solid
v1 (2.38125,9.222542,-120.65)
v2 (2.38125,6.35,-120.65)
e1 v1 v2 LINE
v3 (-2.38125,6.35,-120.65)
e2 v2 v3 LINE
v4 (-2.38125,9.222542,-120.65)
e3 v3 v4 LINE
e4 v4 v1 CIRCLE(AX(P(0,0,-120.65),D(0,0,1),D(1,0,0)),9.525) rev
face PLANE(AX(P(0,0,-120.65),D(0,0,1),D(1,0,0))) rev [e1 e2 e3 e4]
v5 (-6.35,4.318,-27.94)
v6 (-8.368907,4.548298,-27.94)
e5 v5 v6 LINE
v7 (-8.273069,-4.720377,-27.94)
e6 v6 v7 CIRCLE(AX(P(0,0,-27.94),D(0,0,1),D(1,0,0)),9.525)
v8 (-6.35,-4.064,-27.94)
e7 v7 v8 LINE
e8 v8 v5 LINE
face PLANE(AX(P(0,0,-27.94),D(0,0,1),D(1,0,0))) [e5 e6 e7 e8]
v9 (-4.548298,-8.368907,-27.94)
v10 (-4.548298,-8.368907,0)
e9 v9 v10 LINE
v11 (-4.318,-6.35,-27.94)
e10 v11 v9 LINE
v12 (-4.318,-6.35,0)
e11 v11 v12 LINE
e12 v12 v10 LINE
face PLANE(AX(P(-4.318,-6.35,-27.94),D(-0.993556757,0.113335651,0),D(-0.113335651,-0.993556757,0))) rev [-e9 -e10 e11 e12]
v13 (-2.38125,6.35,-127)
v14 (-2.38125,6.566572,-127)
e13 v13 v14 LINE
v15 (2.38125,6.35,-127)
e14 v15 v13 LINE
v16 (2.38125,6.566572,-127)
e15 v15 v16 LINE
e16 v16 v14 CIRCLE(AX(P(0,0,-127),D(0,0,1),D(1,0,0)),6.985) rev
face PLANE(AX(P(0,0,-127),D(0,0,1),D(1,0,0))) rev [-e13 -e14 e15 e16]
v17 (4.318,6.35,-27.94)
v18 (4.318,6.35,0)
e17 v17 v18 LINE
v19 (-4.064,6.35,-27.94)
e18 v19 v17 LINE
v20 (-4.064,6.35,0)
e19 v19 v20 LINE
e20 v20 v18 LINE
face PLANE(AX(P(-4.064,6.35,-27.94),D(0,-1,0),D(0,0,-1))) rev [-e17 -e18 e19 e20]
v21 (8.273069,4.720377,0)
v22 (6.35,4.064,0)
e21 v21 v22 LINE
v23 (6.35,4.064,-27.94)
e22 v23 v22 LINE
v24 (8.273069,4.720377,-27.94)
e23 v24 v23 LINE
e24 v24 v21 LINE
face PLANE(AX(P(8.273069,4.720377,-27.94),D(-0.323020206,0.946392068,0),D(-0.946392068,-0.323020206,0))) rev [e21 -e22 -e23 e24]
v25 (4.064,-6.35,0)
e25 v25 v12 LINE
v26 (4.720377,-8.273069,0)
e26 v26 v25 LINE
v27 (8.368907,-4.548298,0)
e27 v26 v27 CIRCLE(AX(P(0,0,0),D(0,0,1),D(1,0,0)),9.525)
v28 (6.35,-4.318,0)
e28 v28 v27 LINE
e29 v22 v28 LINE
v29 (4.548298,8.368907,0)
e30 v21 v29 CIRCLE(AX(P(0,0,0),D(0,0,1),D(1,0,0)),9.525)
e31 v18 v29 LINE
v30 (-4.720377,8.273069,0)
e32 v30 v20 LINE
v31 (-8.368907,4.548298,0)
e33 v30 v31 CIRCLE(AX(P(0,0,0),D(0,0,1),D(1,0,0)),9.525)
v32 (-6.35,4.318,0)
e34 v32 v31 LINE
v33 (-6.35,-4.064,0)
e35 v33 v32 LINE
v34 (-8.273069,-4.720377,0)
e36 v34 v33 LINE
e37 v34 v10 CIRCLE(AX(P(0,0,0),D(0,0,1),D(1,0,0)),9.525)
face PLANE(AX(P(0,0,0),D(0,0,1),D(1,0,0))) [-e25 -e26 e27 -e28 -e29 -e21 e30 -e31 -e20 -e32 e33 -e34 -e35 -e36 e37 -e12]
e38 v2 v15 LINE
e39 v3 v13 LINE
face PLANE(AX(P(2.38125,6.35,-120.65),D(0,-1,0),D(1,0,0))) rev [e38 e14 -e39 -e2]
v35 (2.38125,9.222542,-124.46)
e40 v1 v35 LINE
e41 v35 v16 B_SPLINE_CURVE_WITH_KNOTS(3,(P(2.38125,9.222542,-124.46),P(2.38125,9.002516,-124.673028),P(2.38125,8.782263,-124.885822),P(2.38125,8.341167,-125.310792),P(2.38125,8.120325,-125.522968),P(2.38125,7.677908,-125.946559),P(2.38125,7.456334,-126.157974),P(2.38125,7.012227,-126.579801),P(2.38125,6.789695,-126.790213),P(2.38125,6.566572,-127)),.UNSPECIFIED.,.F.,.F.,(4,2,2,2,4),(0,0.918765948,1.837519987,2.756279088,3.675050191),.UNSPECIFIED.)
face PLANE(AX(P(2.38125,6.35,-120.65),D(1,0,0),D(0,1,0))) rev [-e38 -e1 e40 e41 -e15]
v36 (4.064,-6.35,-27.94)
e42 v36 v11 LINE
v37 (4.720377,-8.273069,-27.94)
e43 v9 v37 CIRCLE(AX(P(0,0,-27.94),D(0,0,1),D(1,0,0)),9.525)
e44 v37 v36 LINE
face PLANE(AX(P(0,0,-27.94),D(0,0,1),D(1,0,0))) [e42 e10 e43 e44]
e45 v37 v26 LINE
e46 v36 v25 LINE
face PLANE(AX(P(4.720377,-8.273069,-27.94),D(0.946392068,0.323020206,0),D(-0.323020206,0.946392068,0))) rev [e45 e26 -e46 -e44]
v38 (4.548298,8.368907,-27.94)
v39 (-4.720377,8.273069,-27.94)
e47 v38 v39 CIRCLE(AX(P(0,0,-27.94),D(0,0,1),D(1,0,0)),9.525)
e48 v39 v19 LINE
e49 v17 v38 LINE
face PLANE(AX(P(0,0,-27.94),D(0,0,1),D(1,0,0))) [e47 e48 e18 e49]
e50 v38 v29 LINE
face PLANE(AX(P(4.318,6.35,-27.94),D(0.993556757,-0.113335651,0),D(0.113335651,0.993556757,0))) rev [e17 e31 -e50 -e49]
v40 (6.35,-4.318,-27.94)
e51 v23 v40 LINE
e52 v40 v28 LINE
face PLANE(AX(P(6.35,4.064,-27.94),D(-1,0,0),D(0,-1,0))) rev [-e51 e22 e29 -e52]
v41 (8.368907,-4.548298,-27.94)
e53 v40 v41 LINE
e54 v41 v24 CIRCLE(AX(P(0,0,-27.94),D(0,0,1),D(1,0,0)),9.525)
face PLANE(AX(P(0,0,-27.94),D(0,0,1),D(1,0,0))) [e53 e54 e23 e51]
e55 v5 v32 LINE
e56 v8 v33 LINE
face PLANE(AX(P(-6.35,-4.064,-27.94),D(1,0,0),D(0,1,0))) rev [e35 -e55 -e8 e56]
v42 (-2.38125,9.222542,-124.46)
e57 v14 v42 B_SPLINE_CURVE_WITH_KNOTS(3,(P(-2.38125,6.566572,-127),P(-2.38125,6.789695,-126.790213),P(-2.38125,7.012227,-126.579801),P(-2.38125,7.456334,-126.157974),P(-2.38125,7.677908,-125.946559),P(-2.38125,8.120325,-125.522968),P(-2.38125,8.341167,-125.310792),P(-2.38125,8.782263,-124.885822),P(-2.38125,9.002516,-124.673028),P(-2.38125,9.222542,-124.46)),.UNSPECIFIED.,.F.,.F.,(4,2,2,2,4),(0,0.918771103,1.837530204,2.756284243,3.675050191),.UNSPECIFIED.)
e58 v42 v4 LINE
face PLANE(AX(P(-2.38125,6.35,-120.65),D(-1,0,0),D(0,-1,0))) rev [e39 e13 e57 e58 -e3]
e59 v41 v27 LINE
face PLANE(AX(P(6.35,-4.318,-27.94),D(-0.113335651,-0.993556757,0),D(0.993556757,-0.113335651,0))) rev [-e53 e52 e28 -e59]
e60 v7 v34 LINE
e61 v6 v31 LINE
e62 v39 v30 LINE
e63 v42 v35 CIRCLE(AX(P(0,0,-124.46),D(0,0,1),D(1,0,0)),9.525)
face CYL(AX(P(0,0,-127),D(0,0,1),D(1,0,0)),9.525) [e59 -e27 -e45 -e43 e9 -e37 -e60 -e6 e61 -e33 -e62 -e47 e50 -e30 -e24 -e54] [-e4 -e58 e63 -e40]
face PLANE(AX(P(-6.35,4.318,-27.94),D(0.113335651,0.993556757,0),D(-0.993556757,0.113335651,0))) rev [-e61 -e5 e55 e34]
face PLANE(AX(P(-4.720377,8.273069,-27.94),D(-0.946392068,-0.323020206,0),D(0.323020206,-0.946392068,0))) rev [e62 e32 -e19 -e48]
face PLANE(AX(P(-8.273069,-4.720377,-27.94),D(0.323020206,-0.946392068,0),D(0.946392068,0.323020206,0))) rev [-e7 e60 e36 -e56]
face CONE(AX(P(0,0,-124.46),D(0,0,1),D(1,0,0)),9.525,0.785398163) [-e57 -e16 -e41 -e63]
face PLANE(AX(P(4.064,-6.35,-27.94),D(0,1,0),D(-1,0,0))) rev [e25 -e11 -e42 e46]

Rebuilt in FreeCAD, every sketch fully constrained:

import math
import FreeCAD as App
import Part
import Sketcher
from FreeCAD import Vector
Q = App.Units.Quantity


def edges_at(feature, points):
    """Names of the edges that pass closest to the given points."""
    edges = feature.Shape.Edges
    near = lambda p: min(range(len(edges)), key=lambda i: edges[i].distToShape(Part.Vertex(*p))[0])
    return sorted({f"Edge{near(p) + 1}" for p in points})

doc = App.newDocument("Part")
params = doc.addObject("Spreadsheet::Sheet", "Params")
for row, (alias, value) in enumerate([
    ("sketch1_diameter", "0.75 in"),
    ("pad1_length", "5 in"),
    ("sketch2_width", "0.1875 in"),
    ("sketch2_height", "0.125 in"),
    ("pocket1_length", "0.25 in"),
    ("chamfer_size", "0.1 in"),
    ("sketch3_radius", "0.375 in"),
    ("sketch3_width", "0.33 in"),
    ("sketch3_length", "0.08 in"),
    ("pocket2_length", "1.1 in"),
], start=1):
    params.set(f"A{row}", alias)
    params.set(f"B{row}", "=" + value)
    params.setAlias(f"B{row}", alias)

body = doc.addObject("PartDesign::Body", "Body")

sketch1 = doc.addObject("Sketcher::SketchObject", "Sketch")
body.addObject(sketch1)
sketch1.AttachmentSupport = (doc.XY_Plane, [""])
sketch1.MapMode = "FlatFace"
sketch1.addGeometry(Part.Circle(Vector(0, 0, 0), Vector(0, 0, 1), 10), False)
sketch1.addConstraint([
    Sketcher.Constraint("Coincident", 0, 3, -1, 1),
    Sketcher.Constraint("Diameter", 0, Q("0.75 in")),
])
sketch1.setExpression("Constraints[1]", "Params.sketch1_diameter")
pad1 = doc.addObject("PartDesign::Pad", "Pad")
body.addObject(pad1)
pad1.Profile = sketch1
pad1.setExpression("Length", "Params.pad1_length")
pad1.Reversed = True

sketch2 = doc.addObject("Sketcher::SketchObject", "Sketch001")
body.addObject(sketch2)
sketch2.AttachmentSupport = (doc.XY_Plane, [""])
sketch2.MapMode = "FlatFace"
sketch2.AttachmentOffset = App.Placement(Vector(0, 0, -5 * 25.4), App.Rotation())
sketch2.addGeometry([
    Part.LineSegment(Vector(2.4, 9.5, 0), Vector(2.4, 6.3, 0)),
    Part.LineSegment(Vector(2.4, 6.3, 0), Vector(-2.4, 6.3, 0)),
    Part.LineSegment(Vector(-2.4, 6.3, 0), Vector(-2.4, 9.5, 0)),
    Part.LineSegment(Vector(-2.4, 9.5, 0), Vector(2.4, 9.5, 0)),
], False)
sketch2.addConstraint([
    Sketcher.Constraint("Coincident", 0, 2, 1, 1),
    Sketcher.Constraint("Coincident", 1, 2, 2, 1),
    Sketcher.Constraint("Coincident", 2, 2, 3, 1),
    Sketcher.Constraint("Coincident", 3, 2, 0, 1),
    Sketcher.Constraint("Vertical", 0),
    Sketcher.Constraint("Horizontal", 1),
    Sketcher.Constraint("Vertical", 2),
    Sketcher.Constraint("Horizontal", 3),
    Sketcher.Constraint("DistanceX", 1, 2, 1, 1, Q("0.1875 in")),
    Sketcher.Constraint("DistanceY", 0, 2, 0, 1, Q("0.125 in")),
    Sketcher.Constraint("DistanceY", -1, 1, 0, 2, Q("0.25 in")),
    Sketcher.Constraint("DistanceX", -1, 1, 0, 2, Q("0.09375 in")),
])
sketch2.setExpression("Constraints[8]", "Params.sketch2_width")
sketch2.setExpression("Constraints[9]", "Params.sketch2_height")
pocket1 = doc.addObject("PartDesign::Pocket", "Pocket")
body.addObject(pocket1)
pocket1.Profile = sketch2
pocket1.setExpression("Length", "Params.pocket1_length")
pocket1.Reversed = True
doc.recompute()

chamfer = doc.addObject("PartDesign::Chamfer", "Chamfer")
body.addObject(chamfer)
chamfer.Base = (pocket1, edges_at(pocket1, [(-5.833, -7.53, -127)]))
chamfer.setExpression("Size", "Params.chamfer_size")

sketch3 = doc.addObject("Sketcher::SketchObject", "Sketch002")
body.addObject(sketch3)
sketch3.AttachmentSupport = (doc.XY_Plane, [""])
sketch3.MapMode = "FlatFace"
sketch3.addGeometry([
    Part.LineSegment(Vector(-4.7, 8.3, 0), Vector(-4.1, 6.3, 0)),
    Part.LineSegment(Vector(-4.1, 6.3, 0), Vector(4.3, 6.3, 0)),
    Part.LineSegment(Vector(4.3, 6.3, 0), Vector(4.5, 8.4, 0)),
    Part.ArcOfCircle(Part.Circle(Vector(0, 0, 0), Vector(0, 0, 1), 9.5), math.radians(61), math.radians(120)),
    Part.LineSegment(Vector(8.3, 4.7, 0), Vector(6.3, 4.1, 0)),
    Part.LineSegment(Vector(6.3, 4.1, 0), Vector(6.3, -4.3, 0)),
    Part.LineSegment(Vector(6.3, -4.3, 0), Vector(8.4, -4.5, 0)),
    Part.ArcOfCircle(Part.Circle(Vector(0, 0, 0), Vector(0, 0, 1), 9.5), math.radians(-29), math.radians(30)),
    Part.LineSegment(Vector(4.7, -8.3, 0), Vector(4.1, -6.3, 0)),
    Part.LineSegment(Vector(4.1, -6.3, 0), Vector(-4.3, -6.3, 0)),
    Part.LineSegment(Vector(-4.3, -6.3, 0), Vector(-4.5, -8.4, 0)),
    Part.ArcOfCircle(Part.Circle(Vector(0, 0, 0), Vector(0, 0, 1), 9.5), math.radians(-119), math.radians(-60)),
    Part.LineSegment(Vector(-8.3, -4.7, 0), Vector(-6.3, -4.1, 0)),
    Part.LineSegment(Vector(-6.3, -4.1, 0), Vector(-6.3, 4.3, 0)),
    Part.LineSegment(Vector(-6.3, 4.3, 0), Vector(-8.4, 4.5, 0)),
    Part.ArcOfCircle(Part.Circle(Vector(0, 0, 0), Vector(0, 0, 1), 9.5), math.radians(151), math.radians(210)),
], False)
sketch3.addConstraint([
    Sketcher.Constraint("Coincident", 0, 2, 1, 1),
    Sketcher.Constraint("Coincident", 1, 2, 2, 1),
    Sketcher.Constraint("Coincident", 2, 2, 3, 1),
    Sketcher.Constraint("Coincident", 3, 2, 0, 1),
    Sketcher.Constraint("Coincident", 4, 2, 5, 1),
    Sketcher.Constraint("Coincident", 5, 2, 6, 1),
    Sketcher.Constraint("Coincident", 6, 2, 7, 1),
    Sketcher.Constraint("Coincident", 7, 2, 4, 1),
    Sketcher.Constraint("Coincident", 8, 2, 9, 1),
    Sketcher.Constraint("Coincident", 9, 2, 10, 1),
    Sketcher.Constraint("Coincident", 10, 2, 11, 1),
    Sketcher.Constraint("Coincident", 11, 2, 8, 1),
    Sketcher.Constraint("Coincident", 12, 2, 13, 1),
    Sketcher.Constraint("Coincident", 13, 2, 14, 1),
    Sketcher.Constraint("Coincident", 14, 2, 15, 1),
    Sketcher.Constraint("Coincident", 15, 2, 12, 1),
    Sketcher.Constraint("Horizontal", 1),
    Sketcher.Constraint("Vertical", 5),
    Sketcher.Constraint("Horizontal", 9),
    Sketcher.Constraint("Vertical", 13),
    Sketcher.Constraint("Coincident", 3, 3, -1, 1),
    Sketcher.Constraint("Coincident", 7, 3, -1, 1),
    Sketcher.Constraint("Coincident", 11, 3, -1, 1),
    Sketcher.Constraint("Coincident", 15, 3, -1, 1),
    Sketcher.Constraint("Equal", 3, 7),
    Sketcher.Constraint("Equal", 7, 11),
    Sketcher.Constraint("Equal", 11, 15),
    Sketcher.Constraint("Symmetric", 0, 2, 8, 2, -1, 1),
    Sketcher.Constraint("Symmetric", 4, 2, 12, 2, -1, 1),
    Sketcher.Constraint("Perpendicular", 0, 4),
    Sketcher.Constraint("Perpendicular", 2, 6),
    Sketcher.Constraint("Perpendicular", 4, 8),
    Sketcher.Constraint("Perpendicular", 6, 10),
    Sketcher.Constraint("Perpendicular", 8, 12),
    Sketcher.Constraint("Perpendicular", 10, 14),
    Sketcher.Constraint("Equal", 1, 9),
    Sketcher.Constraint("Equal", 9, 5),
    Sketcher.Constraint("Equal", 5, 13),
    Sketcher.Constraint("Equal", 0, 2),
    Sketcher.Constraint("Equal", 2, 4),
    Sketcher.Constraint("Equal", 4, 6),
    Sketcher.Constraint("Radius", 3, Q("0.375 in")),
    Sketcher.Constraint("DistanceX", 1, 1, 1, 2, Q("0.33 in")),
    Sketcher.Constraint("Distance", 0, Q("0.08 in")),
    Sketcher.Constraint("DistanceX", 0, 2, -1, 1, Q("0.16 in")),
    Sketcher.Constraint("DistanceY", -1, 1, 0, 2, Q("0.25 in")),
])
sketch3.setExpression("Constraints[41]", "Params.sketch3_radius")
sketch3.setExpression("Constraints[42]", "Params.sketch3_width")
sketch3.setExpression("Constraints[43]", "Params.sketch3_length")
pocket2 = doc.addObject("PartDesign::Pocket", "Pocket001")
body.addObject(pocket2)
pocket2.Profile = sketch3
pocket2.setExpression("Length", "Params.pocket2_length")

doc.recompute()
